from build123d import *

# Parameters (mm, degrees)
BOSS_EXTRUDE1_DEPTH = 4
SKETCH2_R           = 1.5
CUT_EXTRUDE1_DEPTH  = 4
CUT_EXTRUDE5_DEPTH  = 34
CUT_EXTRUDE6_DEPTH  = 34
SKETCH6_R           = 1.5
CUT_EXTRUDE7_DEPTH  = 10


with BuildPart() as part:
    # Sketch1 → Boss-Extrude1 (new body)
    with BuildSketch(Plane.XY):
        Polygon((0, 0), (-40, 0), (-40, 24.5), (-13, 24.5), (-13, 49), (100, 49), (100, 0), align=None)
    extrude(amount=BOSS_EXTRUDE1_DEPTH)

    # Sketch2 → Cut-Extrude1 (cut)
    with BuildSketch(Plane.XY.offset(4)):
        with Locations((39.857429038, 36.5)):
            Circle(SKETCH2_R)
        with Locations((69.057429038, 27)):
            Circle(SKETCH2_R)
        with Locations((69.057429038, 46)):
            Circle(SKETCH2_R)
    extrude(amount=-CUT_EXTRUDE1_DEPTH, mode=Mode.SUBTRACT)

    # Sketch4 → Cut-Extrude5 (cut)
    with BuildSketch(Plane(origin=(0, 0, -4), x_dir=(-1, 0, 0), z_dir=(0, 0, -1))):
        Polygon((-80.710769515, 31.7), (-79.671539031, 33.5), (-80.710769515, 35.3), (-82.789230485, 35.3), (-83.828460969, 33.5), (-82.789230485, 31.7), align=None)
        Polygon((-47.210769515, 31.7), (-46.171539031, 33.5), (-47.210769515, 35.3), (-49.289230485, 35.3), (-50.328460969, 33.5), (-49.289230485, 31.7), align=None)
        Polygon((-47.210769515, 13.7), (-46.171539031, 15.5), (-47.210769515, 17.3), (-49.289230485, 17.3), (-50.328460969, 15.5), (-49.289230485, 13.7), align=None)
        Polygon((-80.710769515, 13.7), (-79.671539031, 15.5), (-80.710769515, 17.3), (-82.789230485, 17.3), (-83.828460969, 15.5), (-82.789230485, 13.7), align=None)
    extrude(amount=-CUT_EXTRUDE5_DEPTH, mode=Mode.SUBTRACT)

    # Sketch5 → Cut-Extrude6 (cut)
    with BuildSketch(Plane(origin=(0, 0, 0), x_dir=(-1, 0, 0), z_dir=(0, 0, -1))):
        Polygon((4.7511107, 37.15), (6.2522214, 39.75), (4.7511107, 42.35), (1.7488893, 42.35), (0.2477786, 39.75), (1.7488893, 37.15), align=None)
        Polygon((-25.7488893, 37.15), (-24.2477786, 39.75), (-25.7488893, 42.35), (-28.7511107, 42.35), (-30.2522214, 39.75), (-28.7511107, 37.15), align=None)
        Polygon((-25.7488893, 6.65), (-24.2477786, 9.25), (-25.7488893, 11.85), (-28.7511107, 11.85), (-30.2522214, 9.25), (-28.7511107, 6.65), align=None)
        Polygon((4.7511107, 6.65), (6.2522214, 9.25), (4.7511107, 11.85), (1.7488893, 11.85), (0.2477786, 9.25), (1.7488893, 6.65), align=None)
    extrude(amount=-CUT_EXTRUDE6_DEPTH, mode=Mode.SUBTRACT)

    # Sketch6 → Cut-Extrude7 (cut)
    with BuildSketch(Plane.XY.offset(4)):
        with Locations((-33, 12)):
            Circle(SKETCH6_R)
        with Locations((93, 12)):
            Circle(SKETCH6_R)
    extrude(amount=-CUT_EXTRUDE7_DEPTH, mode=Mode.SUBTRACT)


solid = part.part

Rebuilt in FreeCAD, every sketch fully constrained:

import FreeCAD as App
import Part
import Sketcher

V = App.Vector
Q = App.Units.Quantity


def add_polygon(sketch, points):
    """Adds a closed chain of lines whose ends are joined by coincident constraints."""
    first, n = sketch.GeometryCount, len(points)
    for a, b in zip(points, points[1:] + points[:1]):
        sketch.addGeometry(Part.LineSegment(App.Vector(*a, 0), App.Vector(*b, 0)), False)
    for i in range(n):
        sketch.addConstraint(Sketcher.Constraint("Coincident", first + i, 2, first + (i + 1) % n, 1))

doc = App.newDocument("Part")
body = doc.addObject("PartDesign::Body", "Body")

# Sketch on XY plane
sketch1 = body.newObject("Sketcher::SketchObject", "Sketch")
sketch1.AttachmentSupport = (doc.getObject("XY_Plane"), [""])
sketch1.MapMode = "FlatFace"
add_polygon(sketch1, [(-40, 0), (100, 0), (100, 49), (-13, 49), (-13, 24), (-40, 24)])  # lines 0-5
sketch1.addConstraint(Sketcher.Constraint("Horizontal", 0))
sketch1.addConstraint(Sketcher.Constraint("Vertical", 1))
sketch1.addConstraint(Sketcher.Constraint("Horizontal", 2))
sketch1.addConstraint(Sketcher.Constraint("Vertical", 3))
sketch1.addConstraint(Sketcher.Constraint("Horizontal", 4))
sketch1.addConstraint(Sketcher.Constraint("Vertical", 5))
sketch1.addConstraint(Sketcher.Constraint("PointOnObject", 0, 2, -1))
sketch1.addConstraint(Sketcher.Constraint("Equal", 3, 5))
sketch1.addConstraint(Sketcher.Constraint("DistanceX", 0, 1, 0, 2, Q("140 mm")))
sketch1.addConstraint(Sketcher.Constraint("DistanceX", 2, 2, 2, 1, Q("113 mm")))
sketch1.addConstraint(Sketcher.Constraint("DistanceY", 1, 1, 1, 2, Q("49 mm")))
sketch1.addConstraint(Sketcher.Constraint("DistanceX", -1, 1, 0, 2, Q("100 mm")))
pad1 = body.newObject("PartDesign::Pad", "Pad")
pad1.Profile = sketch1
pad1.Length = 4

# Sketch on XY plane
sketch2 = body.newObject("Sketcher::SketchObject", "Sketch001")
sketch2.AttachmentSupport = (doc.getObject("XY_Plane"), [""])
sketch2.MapMode = "FlatFace"
sketch2.AttachmentOffset = App.Placement(V(0, 0, 4), App.Rotation())
sketch2.addGeometry(Part.Circle(V(39.9, 36.5, 0), V(0, 0, 1), 1.5), False)
sketch2.addGeometry(Part.Circle(V(69.1, 27, 0), V(0, 0, 1), 1.5), False)
sketch2.addGeometry(Part.Circle(V(69.1, 46, 0), V(0, 0, 1), 1.5), False)
sketch2.addConstraint(Sketcher.Constraint("Equal", 0, 1))
sketch2.addConstraint(Sketcher.Constraint("Equal", 1, 2))
sketch2.addConstraint(Sketcher.Constraint("Vertical", 1, 3, 2, 3))
sketch2.addConstraint(Sketcher.Constraint("Diameter", 0, Q("3 mm")))
sketch2.addConstraint(Sketcher.Constraint("DistanceY", -1, 1, 1, 3, Q("27 mm")))
sketch2.addConstraint(Sketcher.Constraint("DistanceY", -1, 1, 2, 3, Q("46 mm")))
sketch2.addConstraint(Sketcher.Constraint("DistanceY", -1, 1, 0, 3, Q("36.5 mm")))
sketch2.addConstraint(Sketcher.Constraint("DistanceX", 0, 3, 1, 3, Q("29.2 mm")))
sketch2.addConstraint(Sketcher.Constraint("DistanceX", -1, 1, 0, 3, Q("39.857429 mm")))
pocket1 = body.newObject("PartDesign::Pocket", "Pocket")
pocket1.Profile = sketch2
pocket1.Length = 4

# Sketch on XY plane
sketch3 = body.newObject("Sketcher::SketchObject", "Sketch002")
sketch3.AttachmentSupport = (doc.getObject("XY_Plane"), [""])
sketch3.MapMode = "FlatFace"
sketch3.AttachmentOffset = App.Placement(V(0, 0, -4), App.Rotation())
add_polygon(sketch3, [(80.7, 31.7), (79.7, 33.5), (80.7, 35.3), (82.8, 35.3), (83.8, 33.5), (82.8, 31.7)])  # lines 0-5
add_polygon(sketch3, [(47.2, 31.7), (46.2, 33.5), (47.2, 35.3), (49.3, 35.3), (50.3, 33.5), (49.3, 31.7)])  # lines 6-11
add_polygon(sketch3, [(47.2, 13.7), (46.2, 15.5), (47.2, 17.3), (49.3, 17.3), (50.3, 15.5), (49.3, 13.7)])  # lines 12-17
add_polygon(sketch3, [(80.7, 13.7), (79.7, 15.5), (80.7, 17.3), (82.8, 17.3), (83.8, 15.5), (82.8, 13.7)])  # lines 18-23
sketch3.addConstraint(Sketcher.Constraint("Horizontal", 2))
sketch3.addConstraint(Sketcher.Constraint("Horizontal", 5))
sketch3.addConstraint(Sketcher.Constraint("Horizontal", 8))
sketch3.addConstraint(Sketcher.Constraint("Horizontal", 11))
sketch3.addConstraint(Sketcher.Constraint("Horizontal", 14))
sketch3.addConstraint(Sketcher.Constraint("Horizontal", 17))
sketch3.addConstraint(Sketcher.Constraint("Horizontal", 20))
sketch3.addConstraint(Sketcher.Constraint("Horizontal", 23))
sketch3.addConstraint(Sketcher.Constraint("Parallel", 0, 3))
sketch3.addConstraint(Sketcher.Constraint("Parallel", 1, 4))
sketch3.addConstraint(Sketcher.Constraint("Parallel", 3, 6))
sketch3.addConstraint(Sketcher.Constraint("Parallel", 4, 7))
sketch3.addConstraint(Sketcher.Constraint("Parallel", 6, 9))
sketch3.addConstraint(Sketcher.Constraint("Parallel", 7, 10))
sketch3.addConstraint(Sketcher.Constraint("Parallel", 9, 12))
sketch3.addConstraint(Sketcher.Constraint("Parallel", 10, 13))
sketch3.addConstraint(Sketcher.Constraint("Parallel", 12, 15))
sketch3.addConstraint(Sketcher.Constraint("Parallel", 13, 16))
sketch3.addConstraint(Sketcher.Constraint("Parallel", 15, 18))
sketch3.addConstraint(Sketcher.Constraint("Parallel", 16, 19))
sketch3.addConstraint(Sketcher.Constraint("Parallel", 18, 21))
sketch3.addConstraint(Sketcher.Constraint("Parallel", 19, 22))
sketch3.addConstraint(Sketcher.Constraint("Horizontal", 0, 2, 3, 2))
sketch3.addConstraint(Sketcher.Constraint("Horizontal", 3, 2, 6, 2))
sketch3.addConstraint(Sketcher.Constraint("Horizontal", 2, 2, 7, 2))
sketch3.addConstraint(Sketcher.Constraint("Horizontal", 6, 2, 9, 2))
sketch3.addConstraint(Sketcher.Constraint("Horizontal", 5, 2, 10, 2))
sketch3.addConstraint(Sketcher.Constraint("Horizontal", 12, 2, 15, 2))
sketch3.addConstraint(Sketcher.Constraint("Horizontal", 15, 2, 18, 2))
sketch3.addConstraint(Sketcher.Constraint("Horizontal", 14, 2, 19, 2))
sketch3.addConstraint(Sketcher.Constraint("Horizontal", 18, 2, 21, 2))
sketch3.addConstraint(Sketcher.Constraint("Horizontal", 17, 2, 22, 2))
sketch3.addConstraint(Sketcher.Constraint("Vertical", 2, 2, 4, 2))
sketch3.addConstraint(Sketcher.Constraint("Vertical", 1, 2, 5, 2))
sketch3.addConstraint(Sketcher.Constraint("Vertical", 6, 2, 12, 2))
sketch3.addConstraint(Sketcher.Constraint("Vertical", 11, 2, 13, 2))
sketch3.addConstraint(Sketcher.Constraint("Vertical", 10, 2, 14, 2))
sketch3.addConstraint(Sketcher.Constraint("Vertical", 14, 2, 16, 2))
sketch3.addConstraint(Sketcher.Constraint("Vertical", 0, 2, 18, 2))
sketch3.addConstraint(Sketcher.Constraint("Vertical", 4, 2, 20, 2))
sketch3.addConstraint(Sketcher.Constraint("Equal", 5, 8))
sketch3.addConstraint(Sketcher.Constraint("Angle", 0, Q("120 deg")))
sketch3.addConstraint(Sketcher.Constraint("DistanceY", 12, 2, 6, 2, Q("18 mm")))
sketch3.addConstraint(Sketcher.Constraint("DistanceY", -1, 1, 0, 2, Q("33.5 mm")))
sketch3.addConstraint(Sketcher.Constraint("DistanceY", -1, 1, 1, 2, Q("35.3 mm")))
sketch3.addConstraint(Sketcher.Constraint("DistanceX", 6, 2, 0, 2, Q("33.5 mm")))
sketch3.addConstraint(Sketcher.Constraint("DistanceX", 2, 1, 2, 2, Q("2.078461 mm")))
sketch3.addConstraint(Sketcher.Constraint("DistanceX", -1, 1, 0, 2, Q("79.671539 mm")))
pocket2 = body.newObject("PartDesign::Pocket", "Pocket001")
pocket2.Profile = sketch3
pocket2.Length = 34
pocket2.Reversed = True

# Sketch on XY plane
sketch4 = body.newObject("Sketcher::SketchObject", "Sketch003")
sketch4.AttachmentSupport = (doc.getObject("XY_Plane"), [""])
sketch4.MapMode = "FlatFace"
add_polygon(sketch4, [(-4.8, 37.1), (-6.3, 39.8), (-4.8, 42.4), (-1.7, 42.4), (-0.2, 39.8), (-1.7, 37.1)])  # lines 0-5
add_polygon(sketch4, [(25.7, 37.1), (24.2, 39.8), (25.7, 42.4), (28.8, 42.4), (30.3, 39.8), (28.8, 37.1)])  # lines 6-11
add_polygon(sketch4, [(25.7, 6.7), (24.2, 9.2), (25.7, 11.8), (28.8, 11.8), (30.3, 9.2), (28.8, 6.7)])  # lines 12-17
add_polygon(sketch4, [(-4.8, 6.7), (-6.3, 9.2), (-4.8, 11.8), (-1.7, 11.8), (-0.2, 9.2), (-1.7, 6.7)])  # lines 18-23
sketch4.addConstraint(Sketcher.Constraint("Horizontal", 2))
sketch4.addConstraint(Sketcher.Constraint("Horizontal", 5))
sketch4.addConstraint(Sketcher.Constraint("Horizontal", 8))
sketch4.addConstraint(Sketcher.Constraint("Horizontal", 11))
sketch4.addConstraint(Sketcher.Constraint("Horizontal", 14))
sketch4.addConstraint(Sketcher.Constraint("Horizontal", 17))
sketch4.addConstraint(Sketcher.Constraint("Horizontal", 20))
sketch4.addConstraint(Sketcher.Constraint("Horizontal", 23))
sketch4.addConstraint(Sketcher.Constraint("Parallel", 0, 3))
sketch4.addConstraint(Sketcher.Constraint("Parallel", 1, 4))
sketch4.addConstraint(Sketcher.Constraint("Parallel", 3, 6))
sketch4.addConstraint(Sketcher.Constraint("Parallel", 4, 7))
sketch4.addConstraint(Sketcher.Constraint("Parallel", 6, 9))
sketch4.addConstraint(Sketcher.Constraint("Parallel", 7, 10))
sketch4.addConstraint(Sketcher.Constraint("Parallel", 9, 12))
sketch4.addConstraint(Sketcher.Constraint("Parallel", 10, 13))
sketch4.addConstraint(Sketcher.Constraint("Parallel", 12, 15))
sketch4.addConstraint(Sketcher.Constraint("Parallel", 13, 16))
sketch4.addConstraint(Sketcher.Constraint("Parallel", 15, 18))
sketch4.addConstraint(Sketcher.Constraint("Parallel", 16, 19))
sketch4.addConstraint(Sketcher.Constraint("Parallel", 18, 21))
sketch4.addConstraint(Sketcher.Constraint("Parallel", 19, 22))
sketch4.addConstraint(Sketcher.Constraint("Horizontal", 0, 2, 3, 2))
sketch4.addConstraint(Sketcher.Constraint("Horizontal", 3, 2, 6, 2))
sketch4.addConstraint(Sketcher.Constraint("Horizontal", 2, 2, 7, 2))
sketch4.addConstraint(Sketcher.Constraint("Horizontal", 6, 2, 9, 2))
sketch4.addConstraint(Sketcher.Constraint("Horizontal", 5, 2, 10, 2))
sketch4.addConstraint(Sketcher.Constraint("Horizontal", 12, 2, 15, 2))
sketch4.addConstraint(Sketcher.Constraint("Horizontal", 15, 2, 18, 2))
sketch4.addConstraint(Sketcher.Constraint("Horizontal", 14, 2, 19, 2))
sketch4.addConstraint(Sketcher.Constraint("Horizontal", 18, 2, 21, 2))
sketch4.addConstraint(Sketcher.Constraint("Horizontal", 17, 2, 22, 2))
sketch4.addConstraint(Sketcher.Constraint("Vertical", 2, 2, 4, 2))
sketch4.addConstraint(Sketcher.Constraint("Vertical", 1, 2, 5, 2))
sketch4.addConstraint(Sketcher.Constraint("Vertical", 6, 2, 12, 2))
sketch4.addConstraint(Sketcher.Constraint("Vertical", 11, 2, 13, 2))
sketch4.addConstraint(Sketcher.Constraint("Vertical", 10, 2, 14, 2))
sketch4.addConstraint(Sketcher.Constraint("Vertical", 14, 2, 16, 2))
sketch4.addConstraint(Sketcher.Constraint("Vertical", 0, 2, 18, 2))
sketch4.addConstraint(Sketcher.Constraint("Vertical", 4, 2, 20, 2))
sketch4.addConstraint(Sketcher.Constraint("Equal", 5, 8))
sketch4.addConstraint(Sketcher.Constraint("Angle", 0, Q("120 deg")))
sketch4.addConstraint(Sketcher.Constraint("DistanceY", 0, 2, 1, 2, Q("2.6 mm")))
sketch4.addConstraint(Sketcher.Constraint("DistanceX", 1, 2, 7, 2, Q("30.5 mm")))
sketch4.addConstraint(Sketcher.Constraint("DistanceY", 12, 2, 11, 2, Q("27.9 mm")))
sketch4.addConstraint(Sketcher.Constraint("DistanceY", -1, 1, 0, 2, Q("39.75 mm")))
sketch4.addConstraint(Sketcher.Constraint("DistanceX", 2, 1, 2, 2, Q("3.002221 mm")))
sketch4.addConstraint(Sketcher.Constraint("DistanceX", 0, 2, -1, 1, Q("6.252221 mm")))
pocket3 = body.newObject("PartDesign::Pocket", "Pocket002")
pocket3.Profile = sketch4
pocket3.Length = 34
pocket3.Reversed = True

# Sketch on XY plane
sketch5 = body.newObject("Sketcher::SketchObject", "Sketch004")
sketch5.AttachmentSupport = (doc.getObject("XY_Plane"), [""])
sketch5.MapMode = "FlatFace"
sketch5.AttachmentOffset = App.Placement(V(0, 0, 4), App.Rotation())
sketch5.addGeometry(Part.Circle(V(-33, 12, 0), V(0, 0, 1), 1.5), False)
sketch5.addGeometry(Part.Circle(V(93, 12, 0), V(0, 0, 1), 1.5), False)
sketch5.addConstraint(Sketcher.Constraint("Equal", 0, 1))
sketch5.addConstraint(Sketcher.Constraint("Horizontal", 0, 3, 1, 3))
sketch5.addConstraint(Sketcher.Constraint("Diameter", 0, Q("3 mm")))
sketch5.addConstraint(Sketcher.Constraint("DistanceX", 0, 3, -1, 1, Q("33 mm")))
sketch5.addConstraint(Sketcher.Constraint("DistanceY", -1, 1, 0, 3, Q("12 mm")))
sketch5.addConstraint(Sketcher.Constraint("DistanceX", -1, 1, 1, 3, Q("93 mm")))
pocket4 = body.newObject("PartDesign::Pocket", "Pocket003")
pocket4.Profile = sketch5
pocket4.Length = 10

doc.recompute()
